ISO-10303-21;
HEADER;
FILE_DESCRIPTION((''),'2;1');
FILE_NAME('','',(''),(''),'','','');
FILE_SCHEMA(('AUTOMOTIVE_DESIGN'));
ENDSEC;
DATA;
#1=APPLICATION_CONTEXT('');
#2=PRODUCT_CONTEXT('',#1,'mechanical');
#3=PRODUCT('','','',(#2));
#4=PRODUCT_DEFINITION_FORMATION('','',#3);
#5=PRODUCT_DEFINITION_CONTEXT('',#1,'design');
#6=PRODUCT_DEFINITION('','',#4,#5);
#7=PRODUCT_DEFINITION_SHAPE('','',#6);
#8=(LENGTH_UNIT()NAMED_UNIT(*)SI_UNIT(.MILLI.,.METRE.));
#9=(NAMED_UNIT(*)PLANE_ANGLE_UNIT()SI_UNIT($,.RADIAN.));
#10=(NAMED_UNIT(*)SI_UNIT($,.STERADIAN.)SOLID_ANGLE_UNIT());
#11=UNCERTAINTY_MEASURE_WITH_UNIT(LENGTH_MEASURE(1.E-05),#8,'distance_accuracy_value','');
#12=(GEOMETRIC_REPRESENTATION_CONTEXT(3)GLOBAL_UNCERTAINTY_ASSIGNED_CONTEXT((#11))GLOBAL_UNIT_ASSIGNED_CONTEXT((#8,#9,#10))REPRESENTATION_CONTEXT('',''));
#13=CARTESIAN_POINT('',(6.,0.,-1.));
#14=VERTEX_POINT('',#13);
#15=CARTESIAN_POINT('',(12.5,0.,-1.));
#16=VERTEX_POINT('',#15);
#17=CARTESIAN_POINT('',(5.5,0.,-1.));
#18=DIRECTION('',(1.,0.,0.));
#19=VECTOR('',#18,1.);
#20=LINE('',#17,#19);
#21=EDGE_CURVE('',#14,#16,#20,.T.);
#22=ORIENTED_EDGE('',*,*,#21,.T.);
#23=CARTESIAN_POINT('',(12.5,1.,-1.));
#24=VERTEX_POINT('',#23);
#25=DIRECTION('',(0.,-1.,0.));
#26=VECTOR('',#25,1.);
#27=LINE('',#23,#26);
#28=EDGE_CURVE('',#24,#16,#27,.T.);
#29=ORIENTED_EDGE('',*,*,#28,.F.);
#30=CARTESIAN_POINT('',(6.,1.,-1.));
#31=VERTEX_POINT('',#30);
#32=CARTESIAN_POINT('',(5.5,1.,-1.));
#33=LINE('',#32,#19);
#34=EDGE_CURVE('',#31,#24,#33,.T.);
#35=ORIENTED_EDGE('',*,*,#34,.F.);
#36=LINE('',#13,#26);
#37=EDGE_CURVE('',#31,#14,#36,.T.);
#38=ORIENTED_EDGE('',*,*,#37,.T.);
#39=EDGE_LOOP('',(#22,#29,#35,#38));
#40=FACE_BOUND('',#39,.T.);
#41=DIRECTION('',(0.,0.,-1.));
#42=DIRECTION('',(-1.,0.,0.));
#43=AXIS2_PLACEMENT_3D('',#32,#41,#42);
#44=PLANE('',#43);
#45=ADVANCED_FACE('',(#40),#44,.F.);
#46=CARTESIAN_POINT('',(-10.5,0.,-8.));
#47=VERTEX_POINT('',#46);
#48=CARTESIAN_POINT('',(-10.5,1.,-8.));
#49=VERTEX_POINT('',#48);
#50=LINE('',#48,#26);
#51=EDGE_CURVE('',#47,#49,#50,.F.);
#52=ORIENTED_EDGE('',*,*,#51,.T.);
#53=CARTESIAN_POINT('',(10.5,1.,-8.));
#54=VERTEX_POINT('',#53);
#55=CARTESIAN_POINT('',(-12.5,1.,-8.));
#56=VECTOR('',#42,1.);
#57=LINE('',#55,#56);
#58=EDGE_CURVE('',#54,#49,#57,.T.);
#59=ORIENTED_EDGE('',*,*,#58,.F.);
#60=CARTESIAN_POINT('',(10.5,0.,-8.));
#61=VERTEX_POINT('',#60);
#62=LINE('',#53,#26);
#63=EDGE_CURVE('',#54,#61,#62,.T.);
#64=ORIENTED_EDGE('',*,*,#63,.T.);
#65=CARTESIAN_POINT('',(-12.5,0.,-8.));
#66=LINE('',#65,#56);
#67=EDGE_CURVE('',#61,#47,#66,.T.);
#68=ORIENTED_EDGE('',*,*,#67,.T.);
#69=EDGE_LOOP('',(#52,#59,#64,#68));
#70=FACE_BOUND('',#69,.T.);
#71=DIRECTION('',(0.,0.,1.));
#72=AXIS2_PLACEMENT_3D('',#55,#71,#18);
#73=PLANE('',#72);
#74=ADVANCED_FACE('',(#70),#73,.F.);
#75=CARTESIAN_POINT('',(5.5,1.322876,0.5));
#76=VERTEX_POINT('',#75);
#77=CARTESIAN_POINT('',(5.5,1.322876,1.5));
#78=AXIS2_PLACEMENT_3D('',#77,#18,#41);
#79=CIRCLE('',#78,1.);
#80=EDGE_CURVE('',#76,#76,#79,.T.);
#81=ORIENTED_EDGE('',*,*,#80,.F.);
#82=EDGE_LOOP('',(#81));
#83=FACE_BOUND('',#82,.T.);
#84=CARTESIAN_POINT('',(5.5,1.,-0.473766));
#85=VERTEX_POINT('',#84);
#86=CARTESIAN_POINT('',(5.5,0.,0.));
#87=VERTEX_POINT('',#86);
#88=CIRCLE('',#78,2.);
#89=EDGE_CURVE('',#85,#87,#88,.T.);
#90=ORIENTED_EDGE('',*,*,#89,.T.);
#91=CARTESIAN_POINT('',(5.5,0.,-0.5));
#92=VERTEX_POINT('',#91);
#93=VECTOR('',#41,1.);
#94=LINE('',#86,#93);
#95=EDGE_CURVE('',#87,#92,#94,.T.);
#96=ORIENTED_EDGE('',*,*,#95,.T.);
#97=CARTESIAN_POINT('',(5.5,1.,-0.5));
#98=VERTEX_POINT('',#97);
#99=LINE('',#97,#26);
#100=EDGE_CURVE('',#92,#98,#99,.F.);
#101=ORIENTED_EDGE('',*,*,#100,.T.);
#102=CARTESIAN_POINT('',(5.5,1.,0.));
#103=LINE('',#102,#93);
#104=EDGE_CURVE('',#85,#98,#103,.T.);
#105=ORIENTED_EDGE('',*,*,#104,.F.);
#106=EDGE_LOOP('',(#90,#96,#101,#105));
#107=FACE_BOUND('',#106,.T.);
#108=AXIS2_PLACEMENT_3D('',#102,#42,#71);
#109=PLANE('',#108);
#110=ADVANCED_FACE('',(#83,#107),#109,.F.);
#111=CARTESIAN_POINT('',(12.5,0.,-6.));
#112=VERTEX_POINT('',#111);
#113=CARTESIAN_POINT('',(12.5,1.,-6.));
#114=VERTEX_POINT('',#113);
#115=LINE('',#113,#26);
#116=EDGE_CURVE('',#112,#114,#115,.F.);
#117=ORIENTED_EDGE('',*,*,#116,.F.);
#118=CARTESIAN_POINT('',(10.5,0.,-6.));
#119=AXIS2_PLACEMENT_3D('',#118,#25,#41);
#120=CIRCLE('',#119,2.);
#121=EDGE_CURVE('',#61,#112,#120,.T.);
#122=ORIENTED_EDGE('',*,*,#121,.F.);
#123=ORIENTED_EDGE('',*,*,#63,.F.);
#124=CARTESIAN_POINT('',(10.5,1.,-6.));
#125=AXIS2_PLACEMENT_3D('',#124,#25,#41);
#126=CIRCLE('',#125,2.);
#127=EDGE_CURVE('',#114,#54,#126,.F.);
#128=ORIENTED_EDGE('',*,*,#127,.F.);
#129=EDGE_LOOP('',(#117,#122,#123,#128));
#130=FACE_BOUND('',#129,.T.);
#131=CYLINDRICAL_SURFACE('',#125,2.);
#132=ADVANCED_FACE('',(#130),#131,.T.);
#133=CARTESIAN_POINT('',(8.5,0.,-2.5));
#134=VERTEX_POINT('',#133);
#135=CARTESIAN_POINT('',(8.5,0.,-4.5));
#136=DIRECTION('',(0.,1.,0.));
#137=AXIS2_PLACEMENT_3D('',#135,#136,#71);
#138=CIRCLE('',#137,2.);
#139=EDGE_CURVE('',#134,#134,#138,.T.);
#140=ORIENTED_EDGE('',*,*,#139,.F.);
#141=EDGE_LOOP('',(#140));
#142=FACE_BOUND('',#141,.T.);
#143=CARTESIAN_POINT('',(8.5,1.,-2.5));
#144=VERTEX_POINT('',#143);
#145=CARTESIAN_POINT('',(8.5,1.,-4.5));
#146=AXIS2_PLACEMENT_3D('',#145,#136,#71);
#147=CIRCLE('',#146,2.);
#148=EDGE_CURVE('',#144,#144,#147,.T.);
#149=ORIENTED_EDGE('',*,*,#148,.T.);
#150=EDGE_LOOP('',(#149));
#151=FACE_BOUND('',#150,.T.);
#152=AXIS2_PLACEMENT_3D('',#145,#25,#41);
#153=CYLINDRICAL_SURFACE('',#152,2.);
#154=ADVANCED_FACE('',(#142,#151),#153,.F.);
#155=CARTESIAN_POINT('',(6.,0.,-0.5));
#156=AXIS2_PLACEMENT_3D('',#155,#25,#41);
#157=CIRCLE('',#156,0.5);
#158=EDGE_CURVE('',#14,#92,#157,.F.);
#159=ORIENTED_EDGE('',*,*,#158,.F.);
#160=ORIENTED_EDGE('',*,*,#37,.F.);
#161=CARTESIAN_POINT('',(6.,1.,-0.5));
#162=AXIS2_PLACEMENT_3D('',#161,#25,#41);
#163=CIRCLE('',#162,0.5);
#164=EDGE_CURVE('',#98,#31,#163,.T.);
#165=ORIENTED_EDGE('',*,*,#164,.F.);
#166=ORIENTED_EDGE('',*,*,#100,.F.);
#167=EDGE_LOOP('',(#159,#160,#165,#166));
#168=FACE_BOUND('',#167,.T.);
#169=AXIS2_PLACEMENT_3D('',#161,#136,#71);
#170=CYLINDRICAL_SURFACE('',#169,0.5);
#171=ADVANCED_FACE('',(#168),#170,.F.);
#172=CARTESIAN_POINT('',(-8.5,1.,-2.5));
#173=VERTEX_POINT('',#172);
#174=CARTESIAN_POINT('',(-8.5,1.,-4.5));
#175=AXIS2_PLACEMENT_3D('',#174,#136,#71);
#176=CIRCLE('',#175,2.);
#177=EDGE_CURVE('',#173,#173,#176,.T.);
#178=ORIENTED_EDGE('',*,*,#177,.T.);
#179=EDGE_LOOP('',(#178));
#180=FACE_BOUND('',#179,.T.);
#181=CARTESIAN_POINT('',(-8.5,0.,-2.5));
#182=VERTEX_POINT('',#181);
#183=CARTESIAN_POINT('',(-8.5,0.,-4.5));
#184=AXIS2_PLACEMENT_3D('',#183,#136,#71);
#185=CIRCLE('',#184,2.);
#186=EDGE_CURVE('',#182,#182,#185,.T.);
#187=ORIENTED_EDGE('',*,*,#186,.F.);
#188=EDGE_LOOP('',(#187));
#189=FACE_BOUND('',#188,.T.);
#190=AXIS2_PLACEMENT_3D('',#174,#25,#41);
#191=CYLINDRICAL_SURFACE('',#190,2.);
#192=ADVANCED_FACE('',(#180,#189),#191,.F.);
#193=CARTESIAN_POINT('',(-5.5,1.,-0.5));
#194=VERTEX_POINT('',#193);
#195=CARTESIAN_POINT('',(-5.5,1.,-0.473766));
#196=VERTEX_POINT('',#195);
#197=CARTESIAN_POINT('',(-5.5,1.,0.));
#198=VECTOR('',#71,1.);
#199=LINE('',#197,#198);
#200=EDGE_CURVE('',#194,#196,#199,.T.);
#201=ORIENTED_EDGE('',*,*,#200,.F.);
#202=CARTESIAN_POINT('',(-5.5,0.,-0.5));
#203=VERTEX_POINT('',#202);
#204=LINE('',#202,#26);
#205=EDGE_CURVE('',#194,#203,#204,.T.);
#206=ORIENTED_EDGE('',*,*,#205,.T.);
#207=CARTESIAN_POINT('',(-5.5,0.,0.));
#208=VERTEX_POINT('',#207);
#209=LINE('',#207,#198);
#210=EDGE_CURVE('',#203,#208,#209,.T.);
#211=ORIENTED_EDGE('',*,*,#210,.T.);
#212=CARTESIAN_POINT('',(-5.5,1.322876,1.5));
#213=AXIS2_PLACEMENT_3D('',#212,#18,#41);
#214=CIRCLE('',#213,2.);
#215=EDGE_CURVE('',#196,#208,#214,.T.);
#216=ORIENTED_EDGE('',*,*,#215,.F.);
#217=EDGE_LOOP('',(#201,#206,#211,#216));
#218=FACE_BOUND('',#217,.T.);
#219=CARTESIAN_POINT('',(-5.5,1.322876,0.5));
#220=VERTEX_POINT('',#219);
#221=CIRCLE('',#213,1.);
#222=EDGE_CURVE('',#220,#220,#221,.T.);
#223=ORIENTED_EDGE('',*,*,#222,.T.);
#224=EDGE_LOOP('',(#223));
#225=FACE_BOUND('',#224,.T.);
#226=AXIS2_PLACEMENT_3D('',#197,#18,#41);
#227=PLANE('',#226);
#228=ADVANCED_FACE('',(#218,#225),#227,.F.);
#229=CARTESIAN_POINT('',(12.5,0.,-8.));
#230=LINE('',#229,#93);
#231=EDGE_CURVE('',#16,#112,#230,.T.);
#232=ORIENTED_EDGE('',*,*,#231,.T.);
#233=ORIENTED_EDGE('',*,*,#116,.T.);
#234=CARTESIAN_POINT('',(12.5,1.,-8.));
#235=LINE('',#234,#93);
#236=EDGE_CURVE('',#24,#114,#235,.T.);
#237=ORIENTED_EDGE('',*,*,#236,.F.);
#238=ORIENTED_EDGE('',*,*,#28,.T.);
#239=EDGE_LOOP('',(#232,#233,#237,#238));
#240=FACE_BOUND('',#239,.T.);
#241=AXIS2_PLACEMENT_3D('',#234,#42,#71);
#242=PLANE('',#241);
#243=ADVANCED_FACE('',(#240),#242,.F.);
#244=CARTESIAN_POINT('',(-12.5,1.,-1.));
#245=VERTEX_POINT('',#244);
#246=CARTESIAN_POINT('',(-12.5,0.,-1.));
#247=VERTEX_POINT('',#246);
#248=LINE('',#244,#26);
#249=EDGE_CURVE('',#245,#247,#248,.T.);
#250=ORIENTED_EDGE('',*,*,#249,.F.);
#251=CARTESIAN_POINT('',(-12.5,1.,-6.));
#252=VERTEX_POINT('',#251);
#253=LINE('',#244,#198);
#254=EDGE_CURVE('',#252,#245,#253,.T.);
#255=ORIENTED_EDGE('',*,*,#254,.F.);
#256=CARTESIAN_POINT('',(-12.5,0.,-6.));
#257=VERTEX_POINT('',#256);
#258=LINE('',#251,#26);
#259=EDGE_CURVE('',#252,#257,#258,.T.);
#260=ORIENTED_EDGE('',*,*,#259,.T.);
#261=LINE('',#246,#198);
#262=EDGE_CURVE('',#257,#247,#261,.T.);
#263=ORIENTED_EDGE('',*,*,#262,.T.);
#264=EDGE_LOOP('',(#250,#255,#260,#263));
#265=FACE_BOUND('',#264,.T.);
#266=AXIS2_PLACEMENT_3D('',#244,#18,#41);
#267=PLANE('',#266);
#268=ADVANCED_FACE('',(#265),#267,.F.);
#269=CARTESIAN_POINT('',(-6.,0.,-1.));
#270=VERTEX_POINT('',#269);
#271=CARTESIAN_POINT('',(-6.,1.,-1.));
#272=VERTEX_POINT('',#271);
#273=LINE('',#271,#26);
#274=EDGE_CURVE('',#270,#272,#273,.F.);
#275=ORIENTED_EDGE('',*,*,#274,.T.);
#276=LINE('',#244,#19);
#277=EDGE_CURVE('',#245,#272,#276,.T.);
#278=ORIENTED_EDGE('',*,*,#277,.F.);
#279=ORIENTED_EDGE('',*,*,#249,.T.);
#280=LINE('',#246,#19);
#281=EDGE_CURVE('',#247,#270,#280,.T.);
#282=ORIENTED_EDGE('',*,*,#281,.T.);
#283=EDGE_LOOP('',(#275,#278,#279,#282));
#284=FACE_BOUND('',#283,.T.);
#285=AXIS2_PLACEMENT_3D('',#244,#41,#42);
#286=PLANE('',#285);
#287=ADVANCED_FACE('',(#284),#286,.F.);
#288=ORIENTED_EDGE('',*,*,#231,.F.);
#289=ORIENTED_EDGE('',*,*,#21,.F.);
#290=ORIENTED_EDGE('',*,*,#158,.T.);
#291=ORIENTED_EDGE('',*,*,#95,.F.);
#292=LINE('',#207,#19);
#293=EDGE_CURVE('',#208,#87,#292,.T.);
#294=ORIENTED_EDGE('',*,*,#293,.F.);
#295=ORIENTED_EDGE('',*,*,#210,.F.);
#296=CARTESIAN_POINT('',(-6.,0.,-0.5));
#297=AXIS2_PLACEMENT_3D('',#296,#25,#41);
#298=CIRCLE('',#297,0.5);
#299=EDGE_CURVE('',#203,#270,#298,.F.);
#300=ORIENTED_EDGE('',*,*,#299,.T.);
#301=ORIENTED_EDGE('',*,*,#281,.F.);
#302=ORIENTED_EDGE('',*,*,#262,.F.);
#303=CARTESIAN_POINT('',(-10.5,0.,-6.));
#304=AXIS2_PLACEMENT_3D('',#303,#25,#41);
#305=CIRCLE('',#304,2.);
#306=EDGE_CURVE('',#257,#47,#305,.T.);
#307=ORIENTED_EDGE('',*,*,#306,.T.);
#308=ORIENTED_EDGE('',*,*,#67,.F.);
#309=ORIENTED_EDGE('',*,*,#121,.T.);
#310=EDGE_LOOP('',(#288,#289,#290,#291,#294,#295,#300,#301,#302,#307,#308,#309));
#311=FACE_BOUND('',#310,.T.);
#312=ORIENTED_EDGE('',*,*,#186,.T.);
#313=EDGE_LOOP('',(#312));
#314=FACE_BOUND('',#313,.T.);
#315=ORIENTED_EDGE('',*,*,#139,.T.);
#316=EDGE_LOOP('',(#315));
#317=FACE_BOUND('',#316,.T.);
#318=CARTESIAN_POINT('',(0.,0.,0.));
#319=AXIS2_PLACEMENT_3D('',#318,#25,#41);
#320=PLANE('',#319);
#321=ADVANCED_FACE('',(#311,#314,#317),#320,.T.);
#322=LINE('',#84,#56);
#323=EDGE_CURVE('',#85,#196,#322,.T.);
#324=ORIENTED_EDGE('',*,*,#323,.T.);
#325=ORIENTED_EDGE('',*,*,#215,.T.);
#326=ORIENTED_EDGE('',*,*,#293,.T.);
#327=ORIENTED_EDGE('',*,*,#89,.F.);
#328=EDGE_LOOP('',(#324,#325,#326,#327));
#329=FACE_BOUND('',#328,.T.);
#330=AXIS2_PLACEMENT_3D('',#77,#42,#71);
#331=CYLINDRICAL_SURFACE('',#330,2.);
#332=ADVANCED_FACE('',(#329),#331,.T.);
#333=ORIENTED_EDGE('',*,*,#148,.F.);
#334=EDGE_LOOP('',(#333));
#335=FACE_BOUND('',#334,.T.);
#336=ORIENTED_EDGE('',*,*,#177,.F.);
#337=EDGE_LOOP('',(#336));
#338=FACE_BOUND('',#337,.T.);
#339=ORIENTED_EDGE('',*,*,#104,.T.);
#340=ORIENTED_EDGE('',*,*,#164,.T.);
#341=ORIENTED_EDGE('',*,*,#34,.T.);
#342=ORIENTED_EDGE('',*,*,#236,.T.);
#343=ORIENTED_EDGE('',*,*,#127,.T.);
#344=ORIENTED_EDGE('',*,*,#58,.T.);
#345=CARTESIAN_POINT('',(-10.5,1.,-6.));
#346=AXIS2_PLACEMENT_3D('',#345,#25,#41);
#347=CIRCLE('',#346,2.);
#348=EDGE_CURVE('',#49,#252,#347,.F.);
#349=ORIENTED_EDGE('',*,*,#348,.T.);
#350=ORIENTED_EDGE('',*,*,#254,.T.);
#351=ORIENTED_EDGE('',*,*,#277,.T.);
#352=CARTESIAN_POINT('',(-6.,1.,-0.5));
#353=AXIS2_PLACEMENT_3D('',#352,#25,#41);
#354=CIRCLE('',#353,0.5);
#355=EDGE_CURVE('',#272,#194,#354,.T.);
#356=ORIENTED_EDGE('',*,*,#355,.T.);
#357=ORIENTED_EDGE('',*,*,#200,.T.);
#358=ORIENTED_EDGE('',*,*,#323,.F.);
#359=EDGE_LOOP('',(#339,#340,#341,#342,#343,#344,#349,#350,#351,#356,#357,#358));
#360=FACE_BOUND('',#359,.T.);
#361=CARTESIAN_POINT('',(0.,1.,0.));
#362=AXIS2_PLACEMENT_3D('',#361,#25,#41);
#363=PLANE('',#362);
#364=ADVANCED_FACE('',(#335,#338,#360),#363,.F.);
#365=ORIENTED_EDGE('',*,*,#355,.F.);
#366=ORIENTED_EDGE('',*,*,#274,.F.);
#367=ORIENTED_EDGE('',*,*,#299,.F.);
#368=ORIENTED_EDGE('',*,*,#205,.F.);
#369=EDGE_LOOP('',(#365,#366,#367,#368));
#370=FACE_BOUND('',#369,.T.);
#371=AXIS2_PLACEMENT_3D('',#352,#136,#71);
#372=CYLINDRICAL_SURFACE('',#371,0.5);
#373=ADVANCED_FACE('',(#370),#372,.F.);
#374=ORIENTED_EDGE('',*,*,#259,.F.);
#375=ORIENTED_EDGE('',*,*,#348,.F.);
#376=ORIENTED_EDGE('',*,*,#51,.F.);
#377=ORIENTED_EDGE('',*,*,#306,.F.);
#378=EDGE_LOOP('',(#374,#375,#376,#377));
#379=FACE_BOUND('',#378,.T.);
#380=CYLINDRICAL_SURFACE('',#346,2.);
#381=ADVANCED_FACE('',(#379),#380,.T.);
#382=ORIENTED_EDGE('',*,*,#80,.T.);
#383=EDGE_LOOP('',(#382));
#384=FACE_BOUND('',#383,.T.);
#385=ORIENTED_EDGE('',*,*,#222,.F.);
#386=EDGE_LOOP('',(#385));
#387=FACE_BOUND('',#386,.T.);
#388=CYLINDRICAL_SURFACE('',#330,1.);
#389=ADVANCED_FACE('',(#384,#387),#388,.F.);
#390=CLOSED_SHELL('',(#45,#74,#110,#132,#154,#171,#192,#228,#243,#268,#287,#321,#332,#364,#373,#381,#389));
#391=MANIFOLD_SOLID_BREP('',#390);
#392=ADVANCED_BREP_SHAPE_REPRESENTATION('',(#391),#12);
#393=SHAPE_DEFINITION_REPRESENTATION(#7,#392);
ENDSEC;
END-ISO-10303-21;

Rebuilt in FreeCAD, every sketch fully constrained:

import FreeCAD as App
import Part
import Sketcher

V = App.Vector


def edges_at(feature, points):
    """Names of the edges that pass closest to the given points."""
    edges = feature.Shape.Edges
    near = lambda p: min(range(len(edges)), key=lambda i: edges[i].distToShape(Part.Vertex(*p))[0])
    return sorted({f"Edge{near(p) + 1}" for p in points})

doc = App.newDocument("Part")
body = doc.addObject("PartDesign::Body", "Body")

# Sketch on XZ plane
sketch1 = body.newObject("Sketcher::SketchObject", "Sketch")
sketch1.AttachmentSupport = (doc.getObject("XZ_Plane"), [""])
sketch1.MapMode = "FlatFace"
sketch1.addGeometry([
    Part.LineSegment(V(-12.5, -1, 0), V(-5.5, -1, 0)),  # 0
    Part.LineSegment(V(-5.5, -1, 0), V(-5.5, 0, 0)),  # 1
    Part.LineSegment(V(-5.5, 0, 0), V(5.5, 0, 0)),  # 2
    Part.LineSegment(V(5.5, 0, 0), V(5.5, -1, 0)),  # 3
    Part.LineSegment(V(5.5, -1, 0), V(12.5, -1, 0)),  # 4
    Part.LineSegment(V(12.5, -1, 0), V(12.5, -8, 0)),  # 5
    Part.LineSegment(V(12.5, -8, 0), V(-12.5, -8, 0)),  # 6
    Part.LineSegment(V(-12.5, -8, 0), V(-12.5, -1, 0)),  # 7
    Part.Circle(V(-8.5, -4.5, 0), V(0, 0, 1), 2),  # 8
    Part.Circle(V(8.5, -4.5, 0), V(0, 0, 1), 2),  # 9
], False)
sketch1.addConstraint([
    Sketcher.Constraint("Coincident", 0, 2, 1, 1),
    Sketcher.Constraint("Coincident", 1, 2, 2, 1),
    Sketcher.Constraint("Coincident", 2, 2, 3, 1),
    Sketcher.Constraint("Coincident", 3, 2, 4, 1),
    Sketcher.Constraint("Coincident", 4, 2, 5, 1),
    Sketcher.Constraint("Coincident", 5, 2, 6, 1),
    Sketcher.Constraint("Coincident", 6, 2, 7, 1),
    Sketcher.Constraint("Coincident", 7, 2, 0, 1),
    Sketcher.Constraint("Horizontal", 0),
    Sketcher.Constraint("Vertical", 1),
    Sketcher.Constraint("Horizontal", 2),
    Sketcher.Constraint("Vertical", 3),
    Sketcher.Constraint("Horizontal", 4),
    Sketcher.Constraint("Vertical", 5),
    Sketcher.Constraint("Horizontal", 6),
    Sketcher.Constraint("Vertical", 7),
    Sketcher.Constraint("Equal", 8, 9),
    Sketcher.Constraint("Symmetric", 1, 2, 2, 2, -1, 1),
    Sketcher.Constraint("Symmetric", 8, 3, 9, 3, -2),
    Sketcher.Constraint("Symmetric", 4, 2, 7, 2, -2),
    Sketcher.Constraint("Equal", 4, 5),
    Sketcher.Constraint("Diameter", 8, 4.0),
    Sketcher.Constraint("DistanceX", 0, 1, 0, 2, 7.0),
    Sketcher.Constraint("DistanceX", 2, 1, 2, 2, 11.0),
    Sketcher.Constraint("DistanceY", 1, 1, 1, 2, 1.0),
    Sketcher.Constraint("DistanceX", 8, 3, 9, 3, 17.0),
    Sketcher.Constraint("DistanceY", 8, 3, -1, 1, 4.5),
])
pad1 = body.newObject("PartDesign::Pad", "Pad")
pad1.Profile = sketch1
pad1.Length = 1
pad1.Reversed = True
doc.recompute()

fillet = body.newObject("PartDesign::Fillet", "Fillet")
fillet.Base = (pad1, edges_at(pad1, [(-12.5, 0.5, -8), (12.5, 0.5, -8)]))
fillet.Radius = 2
doc.recompute()

fillet2 = body.newObject("PartDesign::Fillet", "Fillet001")
fillet2.Base = (fillet, edges_at(fillet, [(5.5, 0.5, -1), (-5.5, 0.5, -1)]))
fillet2.Radius = 0.5

# Sketch on YZ plane
sketch2 = body.newObject("Sketcher::SketchObject", "Sketch001")
sketch2.AttachmentSupport = (doc.getObject("YZ_Plane"), [""])
sketch2.MapMode = "FlatFace"
sketch2.addGeometry([
    Part.Circle(V(1.3, 1.5, 0), V(0, 0, 1), 2),
    Part.Circle(V(1.3, 1.5, 0), V(0, 0, 1), 1),
], False)
sketch2.addConstraint([
    Sketcher.Constraint("Coincident", 1, 3, 0, 3),
    Sketcher.Constraint("Diameter", 0, 4.0),
    Sketcher.Constraint("Diameter", 1, 2.0),
    Sketcher.Constraint("DistanceY", -1, 1, 0, 3, 1.5),
    Sketcher.Constraint("DistanceX", -1, 1, 0, 3, 1.322876),
])
pad2 = body.newObject("PartDesign::Pad", "Pad001")
pad2.Profile = sketch2
pad2.Length = 11
pad2.Midplane = True

doc.recompute()
